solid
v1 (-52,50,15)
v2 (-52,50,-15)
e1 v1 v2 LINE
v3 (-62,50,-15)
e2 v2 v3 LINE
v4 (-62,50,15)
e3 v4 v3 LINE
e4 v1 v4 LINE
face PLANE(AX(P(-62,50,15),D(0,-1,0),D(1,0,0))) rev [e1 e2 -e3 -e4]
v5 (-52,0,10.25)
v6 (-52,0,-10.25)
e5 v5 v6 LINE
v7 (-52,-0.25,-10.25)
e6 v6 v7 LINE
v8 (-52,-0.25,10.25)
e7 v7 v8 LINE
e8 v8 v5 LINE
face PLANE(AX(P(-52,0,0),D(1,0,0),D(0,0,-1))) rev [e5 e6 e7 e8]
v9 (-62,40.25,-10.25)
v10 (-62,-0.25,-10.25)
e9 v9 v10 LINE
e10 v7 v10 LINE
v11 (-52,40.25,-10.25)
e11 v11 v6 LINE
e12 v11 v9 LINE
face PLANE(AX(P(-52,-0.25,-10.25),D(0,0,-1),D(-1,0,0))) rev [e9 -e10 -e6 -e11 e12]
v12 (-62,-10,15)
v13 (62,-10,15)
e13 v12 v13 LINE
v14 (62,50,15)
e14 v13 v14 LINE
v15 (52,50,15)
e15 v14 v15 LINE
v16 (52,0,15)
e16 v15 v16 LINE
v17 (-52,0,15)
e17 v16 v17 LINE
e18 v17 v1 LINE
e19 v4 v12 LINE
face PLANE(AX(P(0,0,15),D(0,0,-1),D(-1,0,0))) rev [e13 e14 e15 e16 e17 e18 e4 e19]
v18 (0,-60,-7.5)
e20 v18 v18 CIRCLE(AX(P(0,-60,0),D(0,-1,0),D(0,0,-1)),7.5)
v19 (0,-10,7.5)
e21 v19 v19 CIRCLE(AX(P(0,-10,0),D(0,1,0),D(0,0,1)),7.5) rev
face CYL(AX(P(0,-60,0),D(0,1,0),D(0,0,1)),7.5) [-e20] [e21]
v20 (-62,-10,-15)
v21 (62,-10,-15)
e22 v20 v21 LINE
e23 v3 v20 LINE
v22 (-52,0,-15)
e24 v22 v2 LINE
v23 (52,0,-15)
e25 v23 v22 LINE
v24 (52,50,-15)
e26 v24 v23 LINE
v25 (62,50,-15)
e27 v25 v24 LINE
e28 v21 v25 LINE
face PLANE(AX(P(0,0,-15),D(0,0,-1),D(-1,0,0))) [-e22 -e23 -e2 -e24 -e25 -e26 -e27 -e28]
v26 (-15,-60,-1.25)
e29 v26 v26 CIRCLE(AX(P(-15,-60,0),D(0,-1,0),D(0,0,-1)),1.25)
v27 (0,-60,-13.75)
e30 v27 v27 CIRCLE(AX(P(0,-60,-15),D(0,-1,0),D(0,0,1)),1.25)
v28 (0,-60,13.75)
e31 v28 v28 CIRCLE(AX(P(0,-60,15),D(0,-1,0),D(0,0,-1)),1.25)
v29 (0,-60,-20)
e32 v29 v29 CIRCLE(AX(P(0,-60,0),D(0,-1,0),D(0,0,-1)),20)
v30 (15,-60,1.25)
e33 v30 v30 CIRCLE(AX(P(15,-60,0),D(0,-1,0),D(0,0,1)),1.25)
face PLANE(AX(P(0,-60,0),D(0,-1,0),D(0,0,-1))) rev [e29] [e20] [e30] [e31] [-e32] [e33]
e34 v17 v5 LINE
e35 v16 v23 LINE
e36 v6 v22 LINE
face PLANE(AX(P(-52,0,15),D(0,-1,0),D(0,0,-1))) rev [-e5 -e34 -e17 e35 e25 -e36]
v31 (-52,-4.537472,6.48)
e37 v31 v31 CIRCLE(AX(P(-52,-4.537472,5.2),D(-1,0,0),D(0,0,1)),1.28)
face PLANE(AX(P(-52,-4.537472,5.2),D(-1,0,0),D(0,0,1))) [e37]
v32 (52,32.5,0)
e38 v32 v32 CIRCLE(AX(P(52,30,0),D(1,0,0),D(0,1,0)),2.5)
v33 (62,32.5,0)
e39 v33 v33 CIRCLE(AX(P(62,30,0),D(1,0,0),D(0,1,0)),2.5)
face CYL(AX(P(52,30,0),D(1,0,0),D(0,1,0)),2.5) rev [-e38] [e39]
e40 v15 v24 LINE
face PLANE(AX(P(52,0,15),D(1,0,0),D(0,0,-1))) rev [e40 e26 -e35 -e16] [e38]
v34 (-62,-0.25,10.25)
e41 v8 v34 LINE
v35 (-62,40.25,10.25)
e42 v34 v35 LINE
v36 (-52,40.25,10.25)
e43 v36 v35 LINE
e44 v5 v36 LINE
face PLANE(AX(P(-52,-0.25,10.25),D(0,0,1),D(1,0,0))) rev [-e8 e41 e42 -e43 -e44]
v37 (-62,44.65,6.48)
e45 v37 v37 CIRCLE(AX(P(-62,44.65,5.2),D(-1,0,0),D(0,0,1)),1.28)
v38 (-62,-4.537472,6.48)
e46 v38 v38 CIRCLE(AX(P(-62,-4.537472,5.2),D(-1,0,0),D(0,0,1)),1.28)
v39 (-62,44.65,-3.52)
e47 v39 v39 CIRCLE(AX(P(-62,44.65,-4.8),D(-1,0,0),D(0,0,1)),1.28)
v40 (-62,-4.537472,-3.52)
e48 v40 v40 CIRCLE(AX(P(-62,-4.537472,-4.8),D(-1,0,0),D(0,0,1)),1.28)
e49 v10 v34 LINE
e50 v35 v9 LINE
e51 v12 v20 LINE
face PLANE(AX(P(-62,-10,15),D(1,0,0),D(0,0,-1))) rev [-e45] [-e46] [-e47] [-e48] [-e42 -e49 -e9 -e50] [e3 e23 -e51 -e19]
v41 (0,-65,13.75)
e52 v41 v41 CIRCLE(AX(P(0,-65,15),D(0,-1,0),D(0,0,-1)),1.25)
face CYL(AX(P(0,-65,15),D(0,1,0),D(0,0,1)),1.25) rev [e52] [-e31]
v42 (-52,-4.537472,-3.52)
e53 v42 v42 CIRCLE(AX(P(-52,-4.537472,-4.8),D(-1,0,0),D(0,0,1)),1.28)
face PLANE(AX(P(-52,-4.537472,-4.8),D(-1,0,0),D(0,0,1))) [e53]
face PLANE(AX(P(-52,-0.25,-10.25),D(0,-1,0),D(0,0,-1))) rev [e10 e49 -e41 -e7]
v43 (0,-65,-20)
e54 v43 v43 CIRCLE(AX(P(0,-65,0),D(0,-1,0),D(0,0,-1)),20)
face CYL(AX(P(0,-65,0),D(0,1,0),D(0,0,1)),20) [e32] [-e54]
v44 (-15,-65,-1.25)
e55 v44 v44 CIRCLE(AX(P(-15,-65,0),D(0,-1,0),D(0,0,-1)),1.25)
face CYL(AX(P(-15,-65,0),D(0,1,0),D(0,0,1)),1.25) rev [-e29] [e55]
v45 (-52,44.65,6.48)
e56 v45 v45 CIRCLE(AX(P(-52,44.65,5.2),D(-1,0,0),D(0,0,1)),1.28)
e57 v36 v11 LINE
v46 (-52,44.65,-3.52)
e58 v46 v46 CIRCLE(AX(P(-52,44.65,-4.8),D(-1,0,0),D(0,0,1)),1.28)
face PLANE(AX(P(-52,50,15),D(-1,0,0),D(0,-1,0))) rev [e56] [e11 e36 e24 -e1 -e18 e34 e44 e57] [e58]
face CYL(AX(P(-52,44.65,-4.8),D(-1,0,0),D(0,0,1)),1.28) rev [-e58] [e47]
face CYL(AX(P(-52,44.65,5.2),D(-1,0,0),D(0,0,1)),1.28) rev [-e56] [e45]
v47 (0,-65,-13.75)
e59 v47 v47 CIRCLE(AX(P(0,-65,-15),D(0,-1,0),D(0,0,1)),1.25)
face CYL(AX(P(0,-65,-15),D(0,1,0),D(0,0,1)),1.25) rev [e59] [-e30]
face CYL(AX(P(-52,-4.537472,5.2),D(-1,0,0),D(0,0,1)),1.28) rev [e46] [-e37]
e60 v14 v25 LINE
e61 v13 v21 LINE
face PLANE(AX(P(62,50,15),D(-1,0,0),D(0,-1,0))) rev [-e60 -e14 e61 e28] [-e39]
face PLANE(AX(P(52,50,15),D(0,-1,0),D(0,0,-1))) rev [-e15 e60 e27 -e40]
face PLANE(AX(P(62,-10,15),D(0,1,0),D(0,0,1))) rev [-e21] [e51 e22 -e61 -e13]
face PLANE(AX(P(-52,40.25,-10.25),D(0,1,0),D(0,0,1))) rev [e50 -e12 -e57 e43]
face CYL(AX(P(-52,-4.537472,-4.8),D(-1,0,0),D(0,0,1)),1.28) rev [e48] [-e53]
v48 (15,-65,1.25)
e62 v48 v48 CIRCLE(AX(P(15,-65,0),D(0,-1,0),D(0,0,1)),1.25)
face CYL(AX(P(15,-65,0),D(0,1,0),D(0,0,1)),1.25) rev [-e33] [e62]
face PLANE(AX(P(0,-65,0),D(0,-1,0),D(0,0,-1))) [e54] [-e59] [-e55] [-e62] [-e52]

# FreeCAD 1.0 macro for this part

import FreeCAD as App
import Part
import Sketcher

V = App.Vector
Q = App.Units.Quantity

doc = App.newDocument("Part")
body = doc.addObject("PartDesign::Body", "Body")

# Sketch on XY plane
sketch1 = body.newObject("Sketcher::SketchObject", "Sketch")
sketch1.AttachmentSupport = (doc.getObject("XY_Plane"), [""])
sketch1.MapMode = "FlatFace"
sketch1.addGeometry(Part.LineSegment(V(-52, 0, 0), V(-52, 50, 0)), False)
sketch1.addGeometry(Part.LineSegment(V(-52, 50, 0), V(-62, 50, 0)), False)
sketch1.addGeometry(Part.LineSegment(V(-62, 50, 0), V(-62, -10, 0)), False)
sketch1.addGeometry(Part.LineSegment(V(-62, -10, 0), V(62, -10, 0)), False)
sketch1.addGeometry(Part.LineSegment(V(62, -10, 0), V(62, 50, 0)), False)
sketch1.addGeometry(Part.LineSegment(V(62, 50, 0), V(52, 50, 0)), False)
sketch1.addGeometry(Part.LineSegment(V(52, 50, 0), V(52, 0, 0)), False)
sketch1.addGeometry(Part.LineSegment(V(52, 0, 0), V(-52, 0, 0)), False)
sketch1.addConstraint(Sketcher.Constraint("Coincident", 0, 2, 1, 1))
sketch1.addConstraint(Sketcher.Constraint("Coincident", 1, 2, 2, 1))
sketch1.addConstraint(Sketcher.Constraint("Coincident", 2, 2, 3, 1))
sketch1.addConstraint(Sketcher.Constraint("Coincident", 3, 2, 4, 1))
sketch1.addConstraint(Sketcher.Constraint("Coincident", 4, 2, 5, 1))
sketch1.addConstraint(Sketcher.Constraint("Coincident", 5, 2, 6, 1))
sketch1.addConstraint(Sketcher.Constraint("Coincident", 6, 2, 7, 1))
sketch1.addConstraint(Sketcher.Constraint("Coincident", 7, 2, 0, 1))
sketch1.addConstraint(Sketcher.Constraint("Vertical", 0))
sketch1.addConstraint(Sketcher.Constraint("Horizontal", 1))
sketch1.addConstraint(Sketcher.Constraint("Vertical", 2))
sketch1.addConstraint(Sketcher.Constraint("Horizontal", 3))
sketch1.addConstraint(Sketcher.Constraint("Vertical", 4))
sketch1.addConstraint(Sketcher.Constraint("Horizontal", 5))
sketch1.addConstraint(Sketcher.Constraint("Vertical", 6))
sketch1.addConstraint(Sketcher.Constraint("Horizontal", 7))
sketch1.addConstraint(Sketcher.Constraint("Symmetric", 6, 2, 7, 2, -1, 1))
sketch1.addConstraint(Sketcher.Constraint("Symmetric", 1, 2, 4, 2, -2))
sketch1.addConstraint(Sketcher.Constraint("DistanceX", 1, 2, 1, 1, Q("10 mm")))
sketch1.addConstraint(Sketcher.Constraint("DistanceX", 3, 1, 3, 2, Q("124 mm")))
sketch1.addConstraint(Sketcher.Constraint("DistanceY", 0, 1, 0, 2, Q("50 mm")))
sketch1.addConstraint(Sketcher.Constraint("DistanceY", 2, 2, 2, 1, Q("60 mm")))
pad1 = body.newObject("PartDesign::Pad", "Pad")
pad1.Profile = sketch1
pad1.Length = 30
pad1.Midplane = True

# Sketch on XZ plane
sketch2 = body.newObject("Sketcher::SketchObject", "Sketch001")
sketch2.AttachmentSupport = (doc.getObject("XZ_Plane"), [""])
sketch2.MapMode = "FlatFace"
sketch2.AttachmentOffset = App.Placement(V(0, 0, 10), App.Rotation())
sketch2.addGeometry(Part.Circle(V(0, 0, 0), V(0, 0, 1), 8), False)
sketch2.addConstraint(Sketcher.Constraint("Coincident", 0, 3, -1, 1))
sketch2.addConstraint(Sketcher.Constraint("Diameter", 0, Q("15 mm")))
pad2 = body.newObject("PartDesign::Pad", "Pad001")
pad2.Profile = sketch2
pad2.Length = 50

# Sketch on XZ plane
sketch3 = body.newObject("Sketcher::SketchObject", "Sketch002")
sketch3.AttachmentSupport = (doc.getObject("XZ_Plane"), [""])
sketch3.MapMode = "FlatFace"
sketch3.AttachmentOffset = App.Placement(V(0, 0, 60), App.Rotation())
sketch3.addGeometry(Part.Circle(V(0, 0, 0), V(0, 0, 1), 20), False)
sketch3.addGeometry(Part.Circle(V(0, -15, 0), V(0, 0, 1), 1.2), False)
sketch3.addGeometry(Part.Circle(V(-15, 0, 0), V(0, 0, 1), 1.2), False)
sketch3.addGeometry(Part.Circle(V(15, 0, 0), V(0, 0, 1), 1.2), False)
sketch3.addGeometry(Part.Circle(V(0, 15, 0), V(0, 0, 1), 1.2), False)
sketch3.addConstraint(Sketcher.Constraint("Coincident", 0, 3, -1, 1))
sketch3.addConstraint(Sketcher.Constraint("Equal", 1, 2))
sketch3.addConstraint(Sketcher.Constraint("Equal", 2, 3))
sketch3.addConstraint(Sketcher.Constraint("Equal", 3, 4))
sketch3.addConstraint(Sketcher.Constraint("Symmetric", 2, 3, 3, 3, -1, 1))
sketch3.addConstraint(Sketcher.Constraint("Symmetric", 1, 3, 4, 3, -1, 1))
sketch3.addConstraint(Sketcher.Constraint("PointOnObject", 1, 3, -2))
sketch3.addConstraint(Sketcher.Constraint("PointOnObject", 2, 3, -1))
sketch3.addConstraint(Sketcher.Constraint("Diameter", 0, Q("40 mm")))
sketch3.addConstraint(Sketcher.Constraint("Diameter", 1, Q("2.5 mm")))
sketch3.addConstraint(Sketcher.Constraint("DistanceY", 1, 3, -1, 1, Q("15 mm")))
sketch3.addConstraint(Sketcher.Constraint("DistanceX", 2, 3, -1, 1, Q("15 mm")))
pad3 = body.newObject("PartDesign::Pad", "Pad002")
pad3.Profile = sketch3
pad3.Length = 5

# Sketch on YZ plane
sketch4 = body.newObject("Sketcher::SketchObject", "Sketch003")
sketch4.AttachmentSupport = (doc.getObject("YZ_Plane"), [""])
sketch4.MapMode = "FlatFace"
sketch4.AttachmentOffset = App.Placement(V(0, 0, -62), App.Rotation())
sketch4.addGeometry(Part.Circle(V(44.6, -4.8, 0), V(0, 0, 1), 1.3), False)
sketch4.addGeometry(Part.Circle(V(44.6, 5.2, 0), V(0, 0, 1), 1.3), False)
sketch4.addGeometry(Part.Circle(V(-4.5, -4.8, 0), V(0, 0, 1), 1.3), False)
sketch4.addGeometry(Part.Circle(V(-4.5, 5.2, 0), V(0, 0, 1), 1.3), False)
sketch4.addGeometry(Part.LineSegment(V(40.2, -10.2, 0), V(-0.2, -10.2, 0)), False)
sketch4.addGeometry(Part.LineSegment(V(-0.2, -10.2, 0), V(-0.2, 10.2, 0)), False)
sketch4.addGeometry(Part.LineSegment(V(-0.2, 10.2, 0), V(40.2, 10.2, 0)), False)
sketch4.addGeometry(Part.LineSegment(V(40.2, 10.2, 0), V(40.2, -10.2, 0)), False)
sketch4.addConstraint(Sketcher.Constraint("Coincident", 4, 2, 5, 1))
sketch4.addConstraint(Sketcher.Constraint("Coincident", 5, 2, 6, 1))
sketch4.addConstraint(Sketcher.Constraint("Coincident", 6, 2, 7, 1))
sketch4.addConstraint(Sketcher.Constraint("Coincident", 7, 2, 4, 1))
sketch4.addConstraint(Sketcher.Constraint("Horizontal", 4))
sketch4.addConstraint(Sketcher.Constraint("Vertical", 5))
sketch4.addConstraint(Sketcher.Constraint("Horizontal", 6))
sketch4.addConstraint(Sketcher.Constraint("Vertical", 7))
sketch4.addConstraint(Sketcher.Constraint("Equal", 0, 1))
sketch4.addConstraint(Sketcher.Constraint("Equal", 1, 2))
sketch4.addConstraint(Sketcher.Constraint("Equal", 2, 3))
sketch4.addConstraint(Sketcher.Constraint("Horizontal", 0, 3, 2, 3))
sketch4.addConstraint(Sketcher.Constraint("Horizontal", 1, 3, 3, 3))
sketch4.addConstraint(Sketcher.Constraint("Vertical", 0, 3, 1, 3))
sketch4.addConstraint(Sketcher.Constraint("Vertical", 2, 3, 3, 3))
sketch4.addConstraint(Sketcher.Constraint("Diameter", 0, Q("2.56 mm")))
sketch4.addConstraint(Sketcher.Constraint("DistanceX", 4, 2, 4, 1, Q("40.5 mm")))
sketch4.addConstraint(Sketcher.Constraint("DistanceY", 5, 1, 5, 2, Q("20.5 mm")))
sketch4.addConstraint(Sketcher.Constraint("DistanceY", 0, 3, 1, 3, Q("10 mm")))
sketch4.addConstraint(Sketcher.Constraint("DistanceY", 0, 3, -1, 1, Q("4.8 mm")))
sketch4.addConstraint(Sketcher.Constraint("DistanceX", 4, 2, 0, 3, Q("44.9 mm")))
sketch4.addConstraint(Sketcher.Constraint("DistanceX", -1, 1, 0, 3, Q("44.65 mm")))
sketch4.addConstraint(Sketcher.Constraint("DistanceY", 4, 2, -1, 1, Q("10.25 mm")))
sketch4.addConstraint(Sketcher.Constraint("DistanceX", 2, 3, -1, 1, Q("4.537472 mm")))
pocket1 = body.newObject("PartDesign::Pocket", "Pocket")
pocket1.Profile = sketch4
pocket1.Length = 10
pocket1.Reversed = True

# Sketch on YZ plane
sketch5 = body.newObject("Sketcher::SketchObject", "Sketch004")
sketch5.AttachmentSupport = (doc.getObject("YZ_Plane"), [""])
sketch5.MapMode = "FlatFace"
sketch5.AttachmentOffset = App.Placement(V(0, 0, 62), App.Rotation())
sketch5.addGeometry(Part.Circle(V(30, 0, 0), V(0, 0, 1), 2.5), False)
sketch5.addConstraint(Sketcher.Constraint("PointOnObject", 0, 3, -1))
sketch5.addConstraint(Sketcher.Constraint("Diameter", 0, Q("5 mm")))
sketch5.addConstraint(Sketcher.Constraint("DistanceX", -1, 1, 0, 3, Q("30 mm")))
pocket2 = body.newObject("PartDesign::Pocket", "Pocket001")
pocket2.Profile = sketch5
pocket2.Length = 10

doc.recompute()
